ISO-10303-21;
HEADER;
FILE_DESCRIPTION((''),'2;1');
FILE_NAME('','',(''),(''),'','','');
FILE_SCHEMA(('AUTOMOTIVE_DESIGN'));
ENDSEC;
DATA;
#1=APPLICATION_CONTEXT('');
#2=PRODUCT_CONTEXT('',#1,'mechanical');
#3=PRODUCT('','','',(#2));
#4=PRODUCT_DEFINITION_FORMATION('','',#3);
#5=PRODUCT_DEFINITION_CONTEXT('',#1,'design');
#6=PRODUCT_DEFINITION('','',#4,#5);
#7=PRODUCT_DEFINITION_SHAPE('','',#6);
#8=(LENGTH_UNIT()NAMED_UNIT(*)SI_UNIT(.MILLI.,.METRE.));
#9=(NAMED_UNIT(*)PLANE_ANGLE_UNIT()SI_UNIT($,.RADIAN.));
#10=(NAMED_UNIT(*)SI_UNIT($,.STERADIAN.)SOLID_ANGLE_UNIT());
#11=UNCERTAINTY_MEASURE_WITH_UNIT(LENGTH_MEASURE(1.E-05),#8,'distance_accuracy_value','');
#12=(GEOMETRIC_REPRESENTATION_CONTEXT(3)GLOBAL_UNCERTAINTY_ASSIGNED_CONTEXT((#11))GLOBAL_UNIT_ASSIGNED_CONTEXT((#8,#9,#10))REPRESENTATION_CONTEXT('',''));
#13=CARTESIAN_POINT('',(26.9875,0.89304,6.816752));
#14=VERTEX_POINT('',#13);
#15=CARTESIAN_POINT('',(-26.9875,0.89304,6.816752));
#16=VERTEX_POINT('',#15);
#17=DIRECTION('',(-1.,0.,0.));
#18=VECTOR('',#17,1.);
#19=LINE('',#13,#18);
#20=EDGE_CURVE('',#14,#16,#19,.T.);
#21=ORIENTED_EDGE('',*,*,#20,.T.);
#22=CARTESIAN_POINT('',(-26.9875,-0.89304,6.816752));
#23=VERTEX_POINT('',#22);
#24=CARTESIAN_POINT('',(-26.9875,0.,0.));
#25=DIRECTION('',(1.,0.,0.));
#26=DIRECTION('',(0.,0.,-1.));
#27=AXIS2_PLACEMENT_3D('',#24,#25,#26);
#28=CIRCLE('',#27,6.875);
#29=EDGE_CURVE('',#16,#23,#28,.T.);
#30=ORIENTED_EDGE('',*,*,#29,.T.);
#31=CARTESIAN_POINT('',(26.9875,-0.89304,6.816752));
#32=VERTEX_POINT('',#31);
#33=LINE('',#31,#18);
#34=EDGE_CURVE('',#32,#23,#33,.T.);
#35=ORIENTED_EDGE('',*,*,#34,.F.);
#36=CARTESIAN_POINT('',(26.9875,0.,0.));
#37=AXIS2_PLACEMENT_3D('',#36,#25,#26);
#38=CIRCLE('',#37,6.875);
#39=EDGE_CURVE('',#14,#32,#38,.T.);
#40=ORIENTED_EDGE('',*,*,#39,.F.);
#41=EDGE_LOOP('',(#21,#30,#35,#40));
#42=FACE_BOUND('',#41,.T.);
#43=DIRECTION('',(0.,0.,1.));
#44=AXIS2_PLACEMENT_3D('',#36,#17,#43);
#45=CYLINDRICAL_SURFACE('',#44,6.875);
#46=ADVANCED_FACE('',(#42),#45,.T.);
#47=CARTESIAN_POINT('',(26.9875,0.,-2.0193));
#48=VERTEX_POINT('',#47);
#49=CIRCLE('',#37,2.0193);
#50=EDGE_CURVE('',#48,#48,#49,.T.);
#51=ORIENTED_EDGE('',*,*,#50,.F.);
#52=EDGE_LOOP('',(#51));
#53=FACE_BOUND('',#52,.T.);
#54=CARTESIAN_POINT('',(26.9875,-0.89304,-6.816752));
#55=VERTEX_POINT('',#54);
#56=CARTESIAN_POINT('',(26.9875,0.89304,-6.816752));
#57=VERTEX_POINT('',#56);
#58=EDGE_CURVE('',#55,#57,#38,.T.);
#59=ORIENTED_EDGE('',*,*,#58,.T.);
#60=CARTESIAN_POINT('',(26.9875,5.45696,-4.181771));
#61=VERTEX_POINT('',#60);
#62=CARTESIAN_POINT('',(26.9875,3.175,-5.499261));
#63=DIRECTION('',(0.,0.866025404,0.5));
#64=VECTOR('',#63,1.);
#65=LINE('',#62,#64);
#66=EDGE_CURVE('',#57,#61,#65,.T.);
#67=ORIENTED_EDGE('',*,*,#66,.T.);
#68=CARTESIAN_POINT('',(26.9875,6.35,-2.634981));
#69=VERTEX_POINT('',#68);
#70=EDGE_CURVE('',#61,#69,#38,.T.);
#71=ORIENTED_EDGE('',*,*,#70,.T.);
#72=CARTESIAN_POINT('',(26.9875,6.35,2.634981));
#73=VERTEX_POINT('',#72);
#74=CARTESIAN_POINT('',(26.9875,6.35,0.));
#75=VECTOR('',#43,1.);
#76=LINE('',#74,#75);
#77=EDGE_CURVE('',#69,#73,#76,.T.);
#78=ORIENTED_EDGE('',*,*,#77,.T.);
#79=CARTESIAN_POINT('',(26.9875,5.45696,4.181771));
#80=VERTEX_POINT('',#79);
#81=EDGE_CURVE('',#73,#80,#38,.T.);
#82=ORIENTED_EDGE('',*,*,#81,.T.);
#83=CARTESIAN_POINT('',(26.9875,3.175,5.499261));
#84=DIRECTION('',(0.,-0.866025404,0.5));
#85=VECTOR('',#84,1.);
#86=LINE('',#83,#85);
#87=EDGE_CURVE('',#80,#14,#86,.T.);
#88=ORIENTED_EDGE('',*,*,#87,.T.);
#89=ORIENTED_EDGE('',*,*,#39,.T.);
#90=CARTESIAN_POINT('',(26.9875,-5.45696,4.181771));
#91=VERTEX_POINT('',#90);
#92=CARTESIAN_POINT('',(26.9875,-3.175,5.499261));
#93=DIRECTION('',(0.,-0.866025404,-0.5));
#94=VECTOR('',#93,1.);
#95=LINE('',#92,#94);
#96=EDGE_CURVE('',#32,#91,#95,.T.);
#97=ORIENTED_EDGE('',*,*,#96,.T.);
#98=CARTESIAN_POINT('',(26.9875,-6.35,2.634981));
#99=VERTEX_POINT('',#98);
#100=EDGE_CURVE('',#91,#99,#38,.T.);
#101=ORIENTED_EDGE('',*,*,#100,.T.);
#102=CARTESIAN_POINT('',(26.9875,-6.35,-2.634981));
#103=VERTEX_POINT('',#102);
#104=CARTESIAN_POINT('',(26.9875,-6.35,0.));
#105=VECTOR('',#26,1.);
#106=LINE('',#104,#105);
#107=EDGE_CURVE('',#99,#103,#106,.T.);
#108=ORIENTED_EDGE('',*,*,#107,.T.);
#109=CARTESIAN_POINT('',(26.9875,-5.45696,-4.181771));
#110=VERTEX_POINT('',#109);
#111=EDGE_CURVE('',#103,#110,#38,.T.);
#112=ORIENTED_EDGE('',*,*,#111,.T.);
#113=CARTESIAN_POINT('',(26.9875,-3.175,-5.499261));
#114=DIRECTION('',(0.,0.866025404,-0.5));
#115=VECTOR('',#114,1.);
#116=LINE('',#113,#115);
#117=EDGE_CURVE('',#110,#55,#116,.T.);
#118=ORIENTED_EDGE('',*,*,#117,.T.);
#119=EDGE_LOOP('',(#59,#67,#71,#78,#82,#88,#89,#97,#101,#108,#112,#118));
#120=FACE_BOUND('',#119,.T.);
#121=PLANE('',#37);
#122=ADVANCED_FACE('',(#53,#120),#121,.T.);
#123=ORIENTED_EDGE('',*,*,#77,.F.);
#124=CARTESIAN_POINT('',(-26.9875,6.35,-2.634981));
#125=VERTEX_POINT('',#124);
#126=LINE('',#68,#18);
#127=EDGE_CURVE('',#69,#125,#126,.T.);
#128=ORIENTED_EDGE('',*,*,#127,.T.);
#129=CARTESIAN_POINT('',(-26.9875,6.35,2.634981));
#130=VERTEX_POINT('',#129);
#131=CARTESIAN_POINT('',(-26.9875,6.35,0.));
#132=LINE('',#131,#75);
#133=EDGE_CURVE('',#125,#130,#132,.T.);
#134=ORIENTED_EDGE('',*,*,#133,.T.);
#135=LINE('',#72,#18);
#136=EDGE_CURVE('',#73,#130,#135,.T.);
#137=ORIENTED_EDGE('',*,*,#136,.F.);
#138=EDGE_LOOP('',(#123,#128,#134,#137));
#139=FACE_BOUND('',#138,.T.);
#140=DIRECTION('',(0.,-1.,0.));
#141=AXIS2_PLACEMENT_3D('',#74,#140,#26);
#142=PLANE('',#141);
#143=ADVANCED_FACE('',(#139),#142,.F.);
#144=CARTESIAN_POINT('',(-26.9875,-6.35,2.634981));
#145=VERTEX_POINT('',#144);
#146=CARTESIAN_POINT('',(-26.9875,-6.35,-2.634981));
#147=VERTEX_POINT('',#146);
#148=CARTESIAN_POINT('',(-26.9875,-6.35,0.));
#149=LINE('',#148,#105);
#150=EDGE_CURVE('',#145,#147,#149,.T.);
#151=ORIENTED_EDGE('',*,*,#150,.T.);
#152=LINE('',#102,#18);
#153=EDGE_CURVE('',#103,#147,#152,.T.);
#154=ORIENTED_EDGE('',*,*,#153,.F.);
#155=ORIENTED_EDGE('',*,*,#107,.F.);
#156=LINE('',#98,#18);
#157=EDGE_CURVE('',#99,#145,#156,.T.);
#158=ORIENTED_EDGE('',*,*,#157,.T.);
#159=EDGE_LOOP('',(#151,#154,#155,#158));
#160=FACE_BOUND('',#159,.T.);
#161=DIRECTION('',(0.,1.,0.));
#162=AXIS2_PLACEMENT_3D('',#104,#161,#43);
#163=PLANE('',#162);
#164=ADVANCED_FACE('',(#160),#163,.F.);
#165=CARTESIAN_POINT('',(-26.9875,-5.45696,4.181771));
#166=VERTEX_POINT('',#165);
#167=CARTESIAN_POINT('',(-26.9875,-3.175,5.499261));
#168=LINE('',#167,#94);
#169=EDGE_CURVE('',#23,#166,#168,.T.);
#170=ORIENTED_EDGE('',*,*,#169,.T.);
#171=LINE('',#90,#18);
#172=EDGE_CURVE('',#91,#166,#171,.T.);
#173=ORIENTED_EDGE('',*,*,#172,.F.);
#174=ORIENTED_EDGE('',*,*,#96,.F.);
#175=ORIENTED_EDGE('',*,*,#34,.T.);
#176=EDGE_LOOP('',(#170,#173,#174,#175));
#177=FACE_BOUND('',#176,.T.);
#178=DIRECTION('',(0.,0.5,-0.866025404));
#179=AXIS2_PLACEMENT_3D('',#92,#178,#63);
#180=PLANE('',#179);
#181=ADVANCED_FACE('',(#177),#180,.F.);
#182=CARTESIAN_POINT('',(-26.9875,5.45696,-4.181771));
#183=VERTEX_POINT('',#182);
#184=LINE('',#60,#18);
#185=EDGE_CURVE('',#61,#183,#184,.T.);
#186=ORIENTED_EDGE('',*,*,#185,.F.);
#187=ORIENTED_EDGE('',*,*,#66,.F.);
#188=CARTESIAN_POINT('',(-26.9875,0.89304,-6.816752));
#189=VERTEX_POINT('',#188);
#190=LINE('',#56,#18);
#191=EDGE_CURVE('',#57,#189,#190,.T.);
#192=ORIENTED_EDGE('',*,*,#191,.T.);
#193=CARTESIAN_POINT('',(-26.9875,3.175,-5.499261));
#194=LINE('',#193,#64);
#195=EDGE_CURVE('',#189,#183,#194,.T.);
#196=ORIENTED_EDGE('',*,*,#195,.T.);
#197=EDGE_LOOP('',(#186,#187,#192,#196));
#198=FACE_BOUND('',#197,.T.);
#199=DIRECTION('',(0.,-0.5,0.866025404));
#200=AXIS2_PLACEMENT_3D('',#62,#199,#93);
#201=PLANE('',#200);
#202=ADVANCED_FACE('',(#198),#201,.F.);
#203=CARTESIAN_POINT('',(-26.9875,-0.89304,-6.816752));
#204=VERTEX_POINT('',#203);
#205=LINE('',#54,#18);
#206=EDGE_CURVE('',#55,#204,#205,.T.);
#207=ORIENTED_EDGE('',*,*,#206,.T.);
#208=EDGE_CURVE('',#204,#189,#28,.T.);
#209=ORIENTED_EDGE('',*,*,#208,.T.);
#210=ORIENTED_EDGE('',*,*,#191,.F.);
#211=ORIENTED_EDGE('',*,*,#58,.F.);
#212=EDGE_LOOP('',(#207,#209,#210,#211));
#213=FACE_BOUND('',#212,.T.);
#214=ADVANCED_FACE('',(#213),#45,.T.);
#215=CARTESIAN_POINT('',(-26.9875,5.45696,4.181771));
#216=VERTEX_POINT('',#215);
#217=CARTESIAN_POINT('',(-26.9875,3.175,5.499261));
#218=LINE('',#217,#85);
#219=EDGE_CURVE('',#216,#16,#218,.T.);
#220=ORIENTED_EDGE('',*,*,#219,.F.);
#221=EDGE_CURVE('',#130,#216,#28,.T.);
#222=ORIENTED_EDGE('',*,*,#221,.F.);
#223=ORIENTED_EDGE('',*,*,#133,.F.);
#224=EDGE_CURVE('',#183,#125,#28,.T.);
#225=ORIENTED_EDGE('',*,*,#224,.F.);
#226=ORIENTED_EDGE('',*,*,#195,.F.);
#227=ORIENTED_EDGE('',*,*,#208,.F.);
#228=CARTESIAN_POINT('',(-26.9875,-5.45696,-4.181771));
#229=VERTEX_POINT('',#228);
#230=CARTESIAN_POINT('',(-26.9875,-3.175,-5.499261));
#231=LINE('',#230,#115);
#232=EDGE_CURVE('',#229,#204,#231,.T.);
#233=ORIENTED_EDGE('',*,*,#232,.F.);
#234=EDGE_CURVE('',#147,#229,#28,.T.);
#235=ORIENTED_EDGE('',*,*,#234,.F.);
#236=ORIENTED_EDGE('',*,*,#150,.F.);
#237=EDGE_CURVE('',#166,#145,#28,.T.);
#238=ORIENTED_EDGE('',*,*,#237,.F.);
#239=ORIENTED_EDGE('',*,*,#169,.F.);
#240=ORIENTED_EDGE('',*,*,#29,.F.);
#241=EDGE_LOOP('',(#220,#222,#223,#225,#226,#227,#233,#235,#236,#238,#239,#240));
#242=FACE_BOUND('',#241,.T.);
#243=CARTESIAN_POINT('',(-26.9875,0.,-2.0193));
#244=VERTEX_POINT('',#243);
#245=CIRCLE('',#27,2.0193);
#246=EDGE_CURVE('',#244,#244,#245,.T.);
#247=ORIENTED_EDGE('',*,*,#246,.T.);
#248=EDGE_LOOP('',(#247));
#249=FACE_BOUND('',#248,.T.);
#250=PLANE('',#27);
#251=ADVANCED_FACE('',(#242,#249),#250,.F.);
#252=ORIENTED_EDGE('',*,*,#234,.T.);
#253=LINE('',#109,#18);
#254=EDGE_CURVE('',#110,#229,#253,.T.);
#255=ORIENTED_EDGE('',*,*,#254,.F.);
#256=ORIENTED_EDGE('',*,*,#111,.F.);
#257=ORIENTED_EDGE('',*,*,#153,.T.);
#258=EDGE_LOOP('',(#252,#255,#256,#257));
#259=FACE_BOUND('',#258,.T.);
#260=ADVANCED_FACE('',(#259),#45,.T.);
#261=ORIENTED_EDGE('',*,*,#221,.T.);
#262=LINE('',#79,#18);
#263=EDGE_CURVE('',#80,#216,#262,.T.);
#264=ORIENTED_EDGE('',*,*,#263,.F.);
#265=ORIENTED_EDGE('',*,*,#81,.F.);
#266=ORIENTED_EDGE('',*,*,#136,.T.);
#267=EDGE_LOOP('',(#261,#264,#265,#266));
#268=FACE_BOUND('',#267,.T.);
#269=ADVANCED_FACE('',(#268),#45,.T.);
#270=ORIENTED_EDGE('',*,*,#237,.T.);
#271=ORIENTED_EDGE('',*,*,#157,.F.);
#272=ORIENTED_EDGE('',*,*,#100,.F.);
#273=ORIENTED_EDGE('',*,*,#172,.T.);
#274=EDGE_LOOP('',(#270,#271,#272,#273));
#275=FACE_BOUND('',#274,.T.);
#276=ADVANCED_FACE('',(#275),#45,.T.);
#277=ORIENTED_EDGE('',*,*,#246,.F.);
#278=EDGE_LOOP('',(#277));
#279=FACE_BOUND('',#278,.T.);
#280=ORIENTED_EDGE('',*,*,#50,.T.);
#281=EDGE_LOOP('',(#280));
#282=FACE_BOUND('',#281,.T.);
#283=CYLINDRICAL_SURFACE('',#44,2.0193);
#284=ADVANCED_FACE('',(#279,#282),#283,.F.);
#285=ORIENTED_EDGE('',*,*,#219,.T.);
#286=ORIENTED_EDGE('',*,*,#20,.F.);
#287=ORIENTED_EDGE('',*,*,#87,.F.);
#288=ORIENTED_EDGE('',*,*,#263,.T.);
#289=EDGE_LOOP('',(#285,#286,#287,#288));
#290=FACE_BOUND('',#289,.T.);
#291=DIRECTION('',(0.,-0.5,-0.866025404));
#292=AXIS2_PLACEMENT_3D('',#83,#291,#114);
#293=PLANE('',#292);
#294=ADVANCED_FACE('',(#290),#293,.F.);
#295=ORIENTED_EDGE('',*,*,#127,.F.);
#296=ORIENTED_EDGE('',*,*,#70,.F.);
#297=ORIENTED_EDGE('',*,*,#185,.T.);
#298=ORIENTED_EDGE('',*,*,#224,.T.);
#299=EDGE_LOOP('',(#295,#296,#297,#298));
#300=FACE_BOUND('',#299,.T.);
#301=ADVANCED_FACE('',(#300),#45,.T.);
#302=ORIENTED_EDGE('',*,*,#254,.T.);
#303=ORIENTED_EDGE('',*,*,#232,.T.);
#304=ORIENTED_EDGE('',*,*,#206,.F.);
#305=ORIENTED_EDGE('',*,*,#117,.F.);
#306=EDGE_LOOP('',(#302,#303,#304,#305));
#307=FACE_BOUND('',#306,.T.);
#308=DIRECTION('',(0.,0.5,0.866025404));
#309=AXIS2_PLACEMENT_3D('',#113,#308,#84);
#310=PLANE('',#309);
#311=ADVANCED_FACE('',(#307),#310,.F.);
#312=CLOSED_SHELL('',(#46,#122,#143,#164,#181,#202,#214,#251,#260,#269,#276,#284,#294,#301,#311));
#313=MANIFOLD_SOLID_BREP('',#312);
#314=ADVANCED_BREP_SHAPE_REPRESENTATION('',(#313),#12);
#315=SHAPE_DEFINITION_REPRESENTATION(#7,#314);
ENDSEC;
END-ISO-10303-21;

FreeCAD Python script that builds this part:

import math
import FreeCAD as App
import Part
import Sketcher

V = App.Vector
Q = App.Units.Quantity

doc = App.newDocument("Part")
body = doc.addObject("PartDesign::Body", "Body")

# Sketch on YZ plane
sketch1 = doc.addObject("Sketcher::SketchObject", "Sketch")
body.addObject(sketch1)
sketch1.AttachmentSupport = (doc.YZ_Plane, [""])
sketch1.MapMode = "FlatFace"
sketch1.addGeometry(Part.ArcOfCircle(Part.Circle(V(0, 0, 0), V(0, 0, 1), 6.9), math.radians(-90), math.radians(-82.54)), False)
sketch1.addGeometry(Part.LineSegment(V(0.9, -6.8, 0), V(5.5, -4.2, 0)), False)
sketch1.addGeometry(Part.ArcOfCircle(Part.Circle(V(0, 0, 0), V(0, 0, 1), 6.9), math.radians(-37.46), math.radians(-22.54)), False)
sketch1.addGeometry(Part.LineSegment(V(6.3, -2.6, 0), V(6.3, 2.6, 0)), False)
sketch1.addGeometry(Part.ArcOfCircle(Part.Circle(V(0, 0, 0), V(0, 0, 1), 6.9), math.radians(22.54), math.radians(37.46)), False)
sketch1.addGeometry(Part.LineSegment(V(5.5, 4.2, 0), V(0.9, 6.8, 0)), False)
sketch1.addGeometry(Part.ArcOfCircle(Part.Circle(V(0, 0, 0), V(0, 0, 1), 6.9), math.radians(82.54), math.radians(97.46)), False)
sketch1.addGeometry(Part.LineSegment(V(-0.9, 6.8, 0), V(-5.5, 4.2, 0)), False)
sketch1.addGeometry(Part.ArcOfCircle(Part.Circle(V(0, 0, 0), V(0, 0, 1), 6.9), math.radians(142.54), math.radians(157.46)), False)
sketch1.addGeometry(Part.LineSegment(V(-6.3, 2.6, 0), V(-6.3, -2.6, 0)), False)
sketch1.addGeometry(Part.ArcOfCircle(Part.Circle(V(0, 0, 0), V(0, 0, 1), 6.9), math.radians(-157.46), math.radians(-142.54)), False)
sketch1.addGeometry(Part.LineSegment(V(-5.5, -4.2, 0), V(-0.9, -6.8, 0)), False)
sketch1.addGeometry(Part.ArcOfCircle(Part.Circle(V(0, 0, 0), V(0, 0, 1), 6.9), math.radians(-97.46), math.radians(-90)), False)
sketch1.addGeometry(Part.Circle(V(0, 0, 0), V(0, 0, 1), 2), False)
sketch1.addConstraint(Sketcher.Constraint("Coincident", 0, 2, 1, 1))
sketch1.addConstraint(Sketcher.Constraint("Coincident", 1, 2, 2, 1))
sketch1.addConstraint(Sketcher.Constraint("Coincident", 2, 2, 3, 1))
sketch1.addConstraint(Sketcher.Constraint("Coincident", 3, 2, 4, 1))
sketch1.addConstraint(Sketcher.Constraint("Coincident", 4, 2, 5, 1))
sketch1.addConstraint(Sketcher.Constraint("Coincident", 5, 2, 6, 1))
sketch1.addConstraint(Sketcher.Constraint("Coincident", 6, 2, 7, 1))
sketch1.addConstraint(Sketcher.Constraint("Coincident", 7, 2, 8, 1))
sketch1.addConstraint(Sketcher.Constraint("Coincident", 8, 2, 9, 1))
sketch1.addConstraint(Sketcher.Constraint("Coincident", 9, 2, 10, 1))
sketch1.addConstraint(Sketcher.Constraint("Coincident", 10, 2, 11, 1))
sketch1.addConstraint(Sketcher.Constraint("Coincident", 11, 2, 12, 1))
sketch1.addConstraint(Sketcher.Constraint("Tangent", 12, 2, 0, 1))
sketch1.addConstraint(Sketcher.Constraint("Vertical", 3))
sketch1.addConstraint(Sketcher.Constraint("Vertical", 9))
sketch1.addConstraint(Sketcher.Constraint("Coincident", 0, 3, -1, 1))
sketch1.addConstraint(Sketcher.Constraint("Coincident", 2, 3, -1, 1))
sketch1.addConstraint(Sketcher.Constraint("Coincident", 4, 3, -1, 1))
sketch1.addConstraint(Sketcher.Constraint("Coincident", 6, 3, -1, 1))
sketch1.addConstraint(Sketcher.Constraint("Coincident", 8, 3, -1, 1))
sketch1.addConstraint(Sketcher.Constraint("Coincident", 10, 3, -1, 1))
sketch1.addConstraint(Sketcher.Constraint("Coincident", 13, 3, -1, 1))
sketch1.addConstraint(Sketcher.Constraint("Equal", 0, 2))
sketch1.addConstraint(Sketcher.Constraint("Equal", 2, 4))
sketch1.addConstraint(Sketcher.Constraint("Equal", 4, 6))
sketch1.addConstraint(Sketcher.Constraint("Equal", 6, 8))
sketch1.addConstraint(Sketcher.Constraint("Equal", 8, 10))
sketch1.addConstraint(Sketcher.Constraint("Equal", 10, 12))
sketch1.addConstraint(Sketcher.Constraint("PointOnObject", 12, 2, -2))
sketch1.addConstraint(Sketcher.Constraint("Parallel", 1, 7))
sketch1.addConstraint(Sketcher.Constraint("Parallel", 5, 11))
sketch1.addConstraint(Sketcher.Constraint("Horizontal", 5, 2, 6, 2))
sketch1.addConstraint(Sketcher.Constraint("Horizontal", 4, 2, 7, 2))
sketch1.addConstraint(Sketcher.Constraint("Horizontal", 3, 2, 8, 2))
sketch1.addConstraint(Sketcher.Constraint("Horizontal", 1, 2, 10, 2))
sketch1.addConstraint(Sketcher.Constraint("Vertical", 1, 2, 4, 2))
sketch1.addConstraint(Sketcher.Constraint("Diameter", 13, Q("0.159 in")))
sketch1.addConstraint(Sketcher.Constraint("Angle", 1, Q("30 deg")))
sketch1.addConstraint(Sketcher.Constraint("DistanceX", -1, 1, 2, 2, Q("0.25 in")))
sketch1.addConstraint(Sketcher.Constraint("Radius", 0, Q("6.875 mm")))
sketch1.addConstraint(Sketcher.Constraint("Distance", 1, Q("5.269962 mm")))
pad1 = doc.addObject("PartDesign::Pad", "Pad")
body.addObject(pad1)
pad1.Profile = sketch1
pad1.Length = Q("2.125 in")
pad1.Midplane = True

doc.recompute()
